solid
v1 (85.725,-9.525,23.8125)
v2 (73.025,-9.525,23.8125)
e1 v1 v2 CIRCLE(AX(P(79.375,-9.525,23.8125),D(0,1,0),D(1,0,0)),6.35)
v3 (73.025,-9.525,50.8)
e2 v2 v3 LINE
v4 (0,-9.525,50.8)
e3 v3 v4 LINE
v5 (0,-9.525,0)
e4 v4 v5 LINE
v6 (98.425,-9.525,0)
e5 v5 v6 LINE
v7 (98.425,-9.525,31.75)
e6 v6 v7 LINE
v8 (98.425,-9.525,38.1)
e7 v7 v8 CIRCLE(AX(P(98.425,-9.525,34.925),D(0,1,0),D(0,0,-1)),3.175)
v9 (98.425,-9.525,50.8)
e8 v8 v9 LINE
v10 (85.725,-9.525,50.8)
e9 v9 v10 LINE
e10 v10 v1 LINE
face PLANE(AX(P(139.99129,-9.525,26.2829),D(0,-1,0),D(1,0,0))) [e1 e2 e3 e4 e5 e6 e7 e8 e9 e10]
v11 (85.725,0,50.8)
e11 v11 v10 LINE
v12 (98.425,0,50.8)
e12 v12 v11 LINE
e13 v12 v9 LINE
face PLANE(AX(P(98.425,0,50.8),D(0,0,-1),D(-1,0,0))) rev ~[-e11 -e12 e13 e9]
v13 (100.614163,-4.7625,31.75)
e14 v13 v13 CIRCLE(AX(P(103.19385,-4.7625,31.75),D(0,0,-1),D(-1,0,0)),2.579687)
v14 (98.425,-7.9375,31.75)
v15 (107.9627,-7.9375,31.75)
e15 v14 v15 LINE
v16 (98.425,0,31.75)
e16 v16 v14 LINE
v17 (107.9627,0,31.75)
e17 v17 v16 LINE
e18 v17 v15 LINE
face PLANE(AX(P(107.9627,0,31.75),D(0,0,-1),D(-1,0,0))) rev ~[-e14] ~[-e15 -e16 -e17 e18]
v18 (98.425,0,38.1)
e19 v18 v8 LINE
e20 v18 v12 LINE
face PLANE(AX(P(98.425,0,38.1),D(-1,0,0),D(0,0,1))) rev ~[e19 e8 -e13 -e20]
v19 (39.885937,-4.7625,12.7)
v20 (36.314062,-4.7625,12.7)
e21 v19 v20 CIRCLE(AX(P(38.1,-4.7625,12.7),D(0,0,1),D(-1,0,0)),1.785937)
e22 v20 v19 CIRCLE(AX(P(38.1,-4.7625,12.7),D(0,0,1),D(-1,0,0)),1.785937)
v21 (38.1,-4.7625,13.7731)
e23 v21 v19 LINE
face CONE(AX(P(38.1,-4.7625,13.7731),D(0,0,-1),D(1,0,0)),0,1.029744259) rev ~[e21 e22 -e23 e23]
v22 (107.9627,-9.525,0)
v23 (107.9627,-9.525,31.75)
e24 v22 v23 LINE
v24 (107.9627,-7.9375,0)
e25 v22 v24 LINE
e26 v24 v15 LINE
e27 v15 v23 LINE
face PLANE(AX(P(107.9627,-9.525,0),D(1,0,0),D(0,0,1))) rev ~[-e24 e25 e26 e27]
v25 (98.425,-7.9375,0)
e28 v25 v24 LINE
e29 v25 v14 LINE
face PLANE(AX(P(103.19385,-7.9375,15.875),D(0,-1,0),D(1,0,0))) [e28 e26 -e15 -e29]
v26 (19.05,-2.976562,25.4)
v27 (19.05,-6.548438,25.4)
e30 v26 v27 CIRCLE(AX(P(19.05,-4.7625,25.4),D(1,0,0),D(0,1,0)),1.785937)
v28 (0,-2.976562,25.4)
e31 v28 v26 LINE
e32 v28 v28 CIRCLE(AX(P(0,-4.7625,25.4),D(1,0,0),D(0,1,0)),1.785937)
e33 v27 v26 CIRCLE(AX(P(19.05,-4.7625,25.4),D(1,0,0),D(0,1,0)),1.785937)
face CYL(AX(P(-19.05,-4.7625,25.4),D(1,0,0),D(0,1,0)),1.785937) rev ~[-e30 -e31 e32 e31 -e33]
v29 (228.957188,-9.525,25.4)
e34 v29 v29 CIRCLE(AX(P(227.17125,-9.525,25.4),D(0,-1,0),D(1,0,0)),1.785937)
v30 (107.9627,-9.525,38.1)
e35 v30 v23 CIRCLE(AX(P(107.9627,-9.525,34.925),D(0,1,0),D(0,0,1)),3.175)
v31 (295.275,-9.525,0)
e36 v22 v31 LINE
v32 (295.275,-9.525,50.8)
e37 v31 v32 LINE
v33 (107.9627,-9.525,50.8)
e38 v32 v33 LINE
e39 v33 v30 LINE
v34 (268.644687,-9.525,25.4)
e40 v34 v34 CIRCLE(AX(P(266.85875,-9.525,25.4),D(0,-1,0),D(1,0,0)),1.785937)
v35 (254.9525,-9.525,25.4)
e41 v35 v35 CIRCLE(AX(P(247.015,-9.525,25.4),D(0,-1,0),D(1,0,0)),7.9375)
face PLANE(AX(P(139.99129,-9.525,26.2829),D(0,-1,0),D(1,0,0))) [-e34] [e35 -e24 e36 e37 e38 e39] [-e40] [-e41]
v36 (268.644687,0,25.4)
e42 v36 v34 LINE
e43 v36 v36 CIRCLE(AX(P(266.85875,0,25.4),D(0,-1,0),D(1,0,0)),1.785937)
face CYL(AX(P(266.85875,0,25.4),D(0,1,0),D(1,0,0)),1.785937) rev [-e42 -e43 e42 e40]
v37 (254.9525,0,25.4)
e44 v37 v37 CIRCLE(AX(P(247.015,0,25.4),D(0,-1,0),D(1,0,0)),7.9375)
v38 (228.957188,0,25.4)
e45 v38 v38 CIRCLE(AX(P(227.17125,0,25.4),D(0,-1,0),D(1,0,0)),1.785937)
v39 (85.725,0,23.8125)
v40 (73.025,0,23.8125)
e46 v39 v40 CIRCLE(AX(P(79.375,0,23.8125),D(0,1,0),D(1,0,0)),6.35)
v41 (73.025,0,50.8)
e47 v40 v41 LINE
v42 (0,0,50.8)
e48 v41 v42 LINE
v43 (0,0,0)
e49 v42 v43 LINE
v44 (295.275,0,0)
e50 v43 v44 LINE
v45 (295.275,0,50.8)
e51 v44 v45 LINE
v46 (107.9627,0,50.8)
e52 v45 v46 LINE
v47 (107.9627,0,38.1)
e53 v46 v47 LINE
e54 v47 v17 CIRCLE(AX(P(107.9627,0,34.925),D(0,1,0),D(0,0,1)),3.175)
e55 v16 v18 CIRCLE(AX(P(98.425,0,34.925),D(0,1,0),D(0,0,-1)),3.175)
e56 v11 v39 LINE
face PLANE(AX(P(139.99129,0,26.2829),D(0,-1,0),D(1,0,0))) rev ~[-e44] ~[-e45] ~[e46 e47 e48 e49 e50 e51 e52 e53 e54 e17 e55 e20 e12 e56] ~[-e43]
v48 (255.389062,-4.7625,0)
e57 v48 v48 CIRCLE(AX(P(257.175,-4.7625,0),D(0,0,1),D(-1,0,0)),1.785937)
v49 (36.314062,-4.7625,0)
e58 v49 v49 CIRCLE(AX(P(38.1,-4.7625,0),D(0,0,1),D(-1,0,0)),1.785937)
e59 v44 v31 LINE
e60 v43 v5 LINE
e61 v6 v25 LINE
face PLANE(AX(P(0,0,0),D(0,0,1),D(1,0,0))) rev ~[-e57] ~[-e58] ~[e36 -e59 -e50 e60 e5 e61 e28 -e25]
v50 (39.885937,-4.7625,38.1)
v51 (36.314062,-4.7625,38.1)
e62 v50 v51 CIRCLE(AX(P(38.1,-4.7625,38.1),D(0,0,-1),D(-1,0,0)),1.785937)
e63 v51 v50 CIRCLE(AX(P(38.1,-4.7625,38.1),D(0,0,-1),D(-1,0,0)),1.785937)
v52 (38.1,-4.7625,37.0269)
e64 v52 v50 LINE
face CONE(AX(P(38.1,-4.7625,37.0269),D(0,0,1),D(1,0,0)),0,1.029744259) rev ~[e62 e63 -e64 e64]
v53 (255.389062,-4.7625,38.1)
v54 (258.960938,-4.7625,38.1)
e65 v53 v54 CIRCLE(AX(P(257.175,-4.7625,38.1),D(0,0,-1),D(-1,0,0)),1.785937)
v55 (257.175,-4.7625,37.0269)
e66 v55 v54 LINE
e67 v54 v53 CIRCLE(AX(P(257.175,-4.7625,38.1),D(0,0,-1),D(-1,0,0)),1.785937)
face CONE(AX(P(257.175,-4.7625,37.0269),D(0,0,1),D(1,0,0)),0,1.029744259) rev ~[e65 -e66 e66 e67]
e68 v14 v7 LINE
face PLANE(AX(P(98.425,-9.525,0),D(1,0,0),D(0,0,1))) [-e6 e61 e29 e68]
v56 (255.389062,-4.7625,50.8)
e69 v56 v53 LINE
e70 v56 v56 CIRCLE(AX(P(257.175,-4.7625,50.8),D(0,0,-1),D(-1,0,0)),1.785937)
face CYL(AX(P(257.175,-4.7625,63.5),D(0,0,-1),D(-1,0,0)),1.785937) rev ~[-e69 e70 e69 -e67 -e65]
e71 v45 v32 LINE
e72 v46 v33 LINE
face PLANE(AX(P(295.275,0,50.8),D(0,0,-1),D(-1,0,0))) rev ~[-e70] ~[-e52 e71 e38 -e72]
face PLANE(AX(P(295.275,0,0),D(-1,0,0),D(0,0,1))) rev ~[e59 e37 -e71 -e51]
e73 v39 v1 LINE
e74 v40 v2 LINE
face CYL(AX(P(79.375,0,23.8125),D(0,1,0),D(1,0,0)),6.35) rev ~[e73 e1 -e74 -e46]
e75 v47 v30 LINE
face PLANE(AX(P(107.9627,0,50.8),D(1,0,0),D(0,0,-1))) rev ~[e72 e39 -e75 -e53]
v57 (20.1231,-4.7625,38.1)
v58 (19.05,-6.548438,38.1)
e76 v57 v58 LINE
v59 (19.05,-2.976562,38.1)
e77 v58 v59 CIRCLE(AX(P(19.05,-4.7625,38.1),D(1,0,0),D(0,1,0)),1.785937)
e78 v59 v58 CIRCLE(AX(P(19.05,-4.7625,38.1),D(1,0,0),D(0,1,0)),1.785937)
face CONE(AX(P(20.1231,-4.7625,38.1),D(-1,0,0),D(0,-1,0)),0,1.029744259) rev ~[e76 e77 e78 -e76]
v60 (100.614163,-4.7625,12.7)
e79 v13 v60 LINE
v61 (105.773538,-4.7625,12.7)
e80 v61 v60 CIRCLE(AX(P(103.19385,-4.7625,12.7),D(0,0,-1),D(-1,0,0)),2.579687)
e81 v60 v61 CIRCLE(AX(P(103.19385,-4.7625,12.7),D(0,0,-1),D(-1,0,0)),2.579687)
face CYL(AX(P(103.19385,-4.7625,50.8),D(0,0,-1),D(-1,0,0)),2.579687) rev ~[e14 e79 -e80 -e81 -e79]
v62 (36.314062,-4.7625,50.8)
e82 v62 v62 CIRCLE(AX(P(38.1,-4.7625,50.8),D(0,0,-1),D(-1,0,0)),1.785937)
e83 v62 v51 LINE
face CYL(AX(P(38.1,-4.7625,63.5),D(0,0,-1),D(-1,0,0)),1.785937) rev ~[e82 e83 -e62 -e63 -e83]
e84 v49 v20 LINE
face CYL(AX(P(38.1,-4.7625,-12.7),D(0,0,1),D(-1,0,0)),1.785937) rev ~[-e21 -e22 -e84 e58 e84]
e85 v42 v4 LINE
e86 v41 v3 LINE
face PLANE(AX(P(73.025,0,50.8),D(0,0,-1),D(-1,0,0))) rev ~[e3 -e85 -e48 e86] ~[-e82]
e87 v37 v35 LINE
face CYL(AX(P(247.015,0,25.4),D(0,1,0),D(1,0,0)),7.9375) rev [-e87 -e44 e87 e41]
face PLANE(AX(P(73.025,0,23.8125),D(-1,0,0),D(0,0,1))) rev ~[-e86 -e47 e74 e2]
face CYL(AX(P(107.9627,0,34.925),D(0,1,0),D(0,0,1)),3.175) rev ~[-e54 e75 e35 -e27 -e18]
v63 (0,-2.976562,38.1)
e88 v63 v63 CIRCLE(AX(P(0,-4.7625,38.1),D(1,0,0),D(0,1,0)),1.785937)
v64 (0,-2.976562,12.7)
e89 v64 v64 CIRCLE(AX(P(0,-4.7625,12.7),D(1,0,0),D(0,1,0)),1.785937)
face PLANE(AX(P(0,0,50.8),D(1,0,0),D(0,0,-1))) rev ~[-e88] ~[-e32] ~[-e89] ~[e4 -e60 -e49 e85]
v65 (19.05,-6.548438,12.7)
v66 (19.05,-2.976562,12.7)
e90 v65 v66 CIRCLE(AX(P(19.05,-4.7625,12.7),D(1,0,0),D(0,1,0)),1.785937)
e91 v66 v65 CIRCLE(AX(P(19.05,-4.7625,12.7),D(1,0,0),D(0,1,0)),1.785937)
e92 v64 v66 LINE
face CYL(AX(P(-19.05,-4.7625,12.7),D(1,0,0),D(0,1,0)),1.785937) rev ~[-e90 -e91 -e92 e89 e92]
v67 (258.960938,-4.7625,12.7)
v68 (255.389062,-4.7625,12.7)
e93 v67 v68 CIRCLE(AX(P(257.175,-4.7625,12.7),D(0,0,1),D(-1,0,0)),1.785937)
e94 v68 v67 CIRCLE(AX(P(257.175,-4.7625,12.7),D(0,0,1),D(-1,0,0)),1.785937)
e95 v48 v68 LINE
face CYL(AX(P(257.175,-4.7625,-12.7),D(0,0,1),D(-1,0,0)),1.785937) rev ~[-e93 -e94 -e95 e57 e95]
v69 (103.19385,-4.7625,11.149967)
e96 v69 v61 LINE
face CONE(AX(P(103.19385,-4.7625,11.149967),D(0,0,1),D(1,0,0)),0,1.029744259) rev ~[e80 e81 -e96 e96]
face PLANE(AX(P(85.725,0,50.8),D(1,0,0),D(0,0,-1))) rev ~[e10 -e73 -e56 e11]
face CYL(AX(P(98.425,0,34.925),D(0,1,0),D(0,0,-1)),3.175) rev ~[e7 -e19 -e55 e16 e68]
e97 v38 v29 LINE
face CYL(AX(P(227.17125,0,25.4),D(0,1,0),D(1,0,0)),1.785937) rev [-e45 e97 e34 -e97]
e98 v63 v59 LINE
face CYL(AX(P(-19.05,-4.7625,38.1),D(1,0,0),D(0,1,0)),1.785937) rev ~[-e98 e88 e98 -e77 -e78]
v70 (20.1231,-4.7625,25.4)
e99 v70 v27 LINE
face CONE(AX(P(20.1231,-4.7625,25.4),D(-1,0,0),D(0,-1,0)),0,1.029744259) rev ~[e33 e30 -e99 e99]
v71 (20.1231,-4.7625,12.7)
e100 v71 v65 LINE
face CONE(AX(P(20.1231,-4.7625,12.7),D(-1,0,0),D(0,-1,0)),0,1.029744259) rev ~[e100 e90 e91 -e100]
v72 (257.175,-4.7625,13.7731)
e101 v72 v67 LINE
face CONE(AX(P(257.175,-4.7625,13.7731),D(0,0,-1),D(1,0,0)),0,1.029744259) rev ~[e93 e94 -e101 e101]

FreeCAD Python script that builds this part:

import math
import FreeCAD as App
import Part
import Sketcher

V = App.Vector
Q = App.Units.Quantity

doc = App.newDocument("Part")
body = doc.addObject("PartDesign::Body", "Body")

sketch1 = body.newObject("Sketcher::SketchObject", "Sketch")
sketch1.AttachmentSupport = (doc.getObject("XZ_Plane"), [""])
sketch1.MapMode = "FlatFace"
sketch1.addGeometry(Part.LineSegment(V(0, 50.8, 0), V(0, 0, 0)), False)
sketch1.addGeometry(Part.LineSegment(V(0, 0, 0), V(295.3, 0, 0)), False)
sketch1.addGeometry(Part.LineSegment(V(295.3, 0, 0), V(295.3, 50.8, 0)), False)
sketch1.addGeometry(Part.LineSegment(V(295.3, 50.8, 0), V(108, 50.8, 0)), False)
sketch1.addGeometry(Part.LineSegment(V(108, 50.8, 0), V(108, 38.1, 0)), False)
sketch1.addGeometry(Part.ArcOfCircle(Part.Circle(V(108, 34.9, 0), V(0, 0, 1), 3.2), math.radians(-90), math.radians(90)), False)
sketch1.addGeometry(Part.LineSegment(V(108, 31.8, 0), V(98.4, 31.8, 0)), False)
sketch1.addGeometry(Part.ArcOfCircle(Part.Circle(V(98.4, 34.9, 0), V(0, 0, 1), 3.2), math.radians(90), math.radians(270)), False)
sketch1.addGeometry(Part.LineSegment(V(98.4, 38.1, 0), V(98.4, 50.8, 0)), False)
sketch1.addGeometry(Part.LineSegment(V(98.4, 50.8, 0), V(85.7, 50.8, 0)), False)
sketch1.addGeometry(Part.LineSegment(V(85.7, 50.8, 0), V(85.7, 23.8, 0)), False)
sketch1.addGeometry(Part.ArcOfCircle(Part.Circle(V(79.4, 23.8, 0), V(0, 0, 1), 6.3), math.radians(180), math.radians(360)), False)
sketch1.addGeometry(Part.LineSegment(V(73, 23.8, 0), V(73, 50.8, 0)), False)
sketch1.addGeometry(Part.LineSegment(V(73, 50.8, 0), V(0, 50.8, 0)), False)
sketch1.addGeometry(Part.Circle(V(227.2, 25.4, 0), V(0, 0, 1), 1.8), False)
sketch1.addGeometry(Part.Circle(V(247, 25.4, 0), V(0, 0, 1), 7.9), False)
sketch1.addGeometry(Part.Circle(V(266.9, 25.4, 0), V(0, 0, 1), 1.8), False)
sketch1.addConstraint(Sketcher.Constraint("Coincident", 0, 2, 1, 1))
sketch1.addConstraint(Sketcher.Constraint("Coincident", 1, 2, 2, 1))
sketch1.addConstraint(Sketcher.Constraint("Coincident", 2, 2, 3, 1))
sketch1.addConstraint(Sketcher.Constraint("Coincident", 3, 2, 4, 1))
sketch1.addConstraint(Sketcher.Constraint("Coincident", 4, 2, 5, 2))
sketch1.addConstraint(Sketcher.Constraint("Tangent", 5, 1, 6, 1))
sketch1.addConstraint(Sketcher.Constraint("Tangent", 6, 2, 7, 2))
sketch1.addConstraint(Sketcher.Constraint("Coincident", 7, 1, 8, 1))
sketch1.addConstraint(Sketcher.Constraint("Coincident", 8, 2, 9, 1))
sketch1.addConstraint(Sketcher.Constraint("Coincident", 9, 2, 10, 1))
sketch1.addConstraint(Sketcher.Constraint("Tangent", 10, 2, 11, 2))
sketch1.addConstraint(Sketcher.Constraint("Tangent", 11, 1, 12, 1))
sketch1.addConstraint(Sketcher.Constraint("Coincident", 12, 2, 13, 1))
sketch1.addConstraint(Sketcher.Constraint("Coincident", 13, 2, 0, 1))
sketch1.addConstraint(Sketcher.Constraint("Vertical", 0))
sketch1.addConstraint(Sketcher.Constraint("Horizontal", 1))
sketch1.addConstraint(Sketcher.Constraint("Vertical", 2))
sketch1.addConstraint(Sketcher.Constraint("Horizontal", 3))
sketch1.addConstraint(Sketcher.Constraint("Vertical", 4))
sketch1.addConstraint(Sketcher.Constraint("Horizontal", 6))
sketch1.addConstraint(Sketcher.Constraint("Vertical", 8))
sketch1.addConstraint(Sketcher.Constraint("Horizontal", 9))
sketch1.addConstraint(Sketcher.Constraint("Vertical", 10))
sketch1.addConstraint(Sketcher.Constraint("Vertical", 12))
sketch1.addConstraint(Sketcher.Constraint("Horizontal", 13))
sketch1.addConstraint(Sketcher.Constraint("Coincident", 0, 2, -1, 1))
sketch1.addConstraint(Sketcher.Constraint("Equal", 5, 7))
sketch1.addConstraint(Sketcher.Constraint("Equal", 14, 16))
sketch1.addConstraint(Sketcher.Constraint("Horizontal", 14, 3, 15, 3))
sketch1.addConstraint(Sketcher.Constraint("Horizontal", 15, 3, 16, 3))
sketch1.addConstraint(Sketcher.Constraint("Horizontal", 3, 2, 8, 2))
sketch1.addConstraint(Sketcher.Constraint("Horizontal", 9, 2, 12, 2))
sketch1.addConstraint(Sketcher.Constraint("Vertical", 5, 3, 3, 2))
sketch1.addConstraint(Sketcher.Constraint("Vertical", 6, 2, 7, 1))
sketch1.addConstraint(Sketcher.Constraint("Equal", 9, 4))
sketch1.addConstraint(Sketcher.Constraint("DistanceY", 0, 2, 0, 1, Q("2 in")))
sketch1.addConstraint(Sketcher.Constraint("Radius", 11, Q("0.25 in")))
sketch1.addConstraint(Sketcher.Constraint("Diameter", 14, Q("0.140625 in")))
sketch1.addConstraint(Sketcher.Constraint("Diameter", 15, Q("0.625 in")))
sketch1.addConstraint(Sketcher.Constraint("DistanceX", 9, 2, 9, 1, Q("0.5 in")))
sketch1.addConstraint(Sketcher.Constraint("DistanceY", -1, 1, 14, 3, Q("1 in")))
sketch1.addConstraint(Sketcher.Constraint("Radius", 5, Q("0.125 in")))
sketch1.addConstraint(Sketcher.Constraint("DistanceX", 11, 3, 15, 3, Q("6.6 in")))
sketch1.addConstraint(Sketcher.Constraint("DistanceX", 15, 3, 1, 2, Q("1.9 in")))
sketch1.addConstraint(Sketcher.Constraint("DistanceX", 1, 1, 1, 2, Q("11.625 in")))
sketch1.addConstraint(Sketcher.Constraint("DistanceY", 10, 2, 10, 1, Q("1.0625 in")))
sketch1.addConstraint(Sketcher.Constraint("DistanceX", 3, 2, 3, 1, Q("7.3745 in")))
sketch1.addConstraint(Sketcher.Constraint("DistanceX", 14, 3, 15, 3, Q("0.78125 in")))
sketch1.addConstraint(Sketcher.Constraint("DistanceX", 15, 3, 16, 3, Q("0.78125 in")))
pad1 = body.newObject("PartDesign::Pad", "Pad")
pad1.Profile = sketch1
pad1.Length = Q("0.375 in")

sketch2 = body.newObject("Sketcher::SketchObject", "Sketch001")
sketch2.AttachmentSupport = (doc.getObject("XZ_Plane"), [""])
sketch2.MapMode = "FlatFace"
sketch2.AttachmentOffset = App.Placement(V(0, 0, 0.375 * 25.4), App.Rotation())
sketch2.addGeometry(Part.LineSegment(V(98, 32, 0), V(98, 0, 0)), False)
sketch2.addGeometry(Part.LineSegment(V(98, 0, 0), V(108, 0, 0)), False)
sketch2.addGeometry(Part.LineSegment(V(108, 0, 0), V(108, 32, 0)), False)
sketch2.addGeometry(Part.LineSegment(V(108, 32, 0), V(98, 32, 0)), False)
sketch2.addConstraint(Sketcher.Constraint("Coincident", 0, 2, 1, 1))
sketch2.addConstraint(Sketcher.Constraint("Coincident", 1, 2, 2, 1))
sketch2.addConstraint(Sketcher.Constraint("Coincident", 2, 2, 3, 1))
sketch2.addConstraint(Sketcher.Constraint("Coincident", 3, 2, 0, 1))
sketch2.addConstraint(Sketcher.Constraint("Vertical", 0))
sketch2.addConstraint(Sketcher.Constraint("Horizontal", 1))
sketch2.addConstraint(Sketcher.Constraint("Vertical", 2))
sketch2.addConstraint(Sketcher.Constraint("Horizontal", 3))
sketch2.addConstraint(Sketcher.Constraint("PointOnObject", 0, 2, -1))
sketch2.addConstraint(Sketcher.Constraint("DistanceY", 0, 2, 0, 1, Q("1.25 in")))
sketch2.addConstraint(Sketcher.Constraint("DistanceX", 1, 1, 1, 2, Q("0.3755 in")))
sketch2.addConstraint(Sketcher.Constraint("DistanceX", -1, 1, 0, 2, Q("3.875 in")))
pocket1 = body.newObject("PartDesign::Pocket", "Pocket")
pocket1.Profile = sketch2
pocket1.Length = Q("0.0625 in")

sketch3 = body.newObject("Sketcher::SketchObject", "Sketch002")
sketch3.AttachmentSupport = (doc.getObject("YZ_Plane"), [""])
sketch3.MapMode = "FlatFace"
sketch3.addGeometry(Part.Circle(V(-4.8, 38.1, 0), V(0, 0, 1), 1.8), False)
sketch3.addGeometry(Part.Circle(V(-4.8, 25.4, 0), V(0, 0, 1), 1.8), False)
sketch3.addGeometry(Part.Circle(V(-4.8, 12.7, 0), V(0, 0, 1), 1.8), False)
sketch3.addConstraint(Sketcher.Constraint("Equal", 0, 1))
sketch3.addConstraint(Sketcher.Constraint("Equal", 1, 2))
sketch3.addConstraint(Sketcher.Constraint("Vertical", 0, 3, 1, 3))
sketch3.addConstraint(Sketcher.Constraint("Vertical", 1, 3, 2, 3))
sketch3.addConstraint(Sketcher.Constraint("Diameter", 0, Q("0.140625 in")))
sketch3.addConstraint(Sketcher.Constraint("DistanceY", -1, 1, 1, 3, Q("1 in")))
sketch3.addConstraint(Sketcher.Constraint("DistanceY", 2, 3, 0, 3, Q("1 in")))
sketch3.addConstraint(Sketcher.Constraint("DistanceY", -1, 1, 0, 3, Q("1.5 in")))
sketch3.addConstraint(Sketcher.Constraint("DistanceX", 0, 3, -1, 1, Q("0.1875 in")))
doc.recompute()
hole = body.newObject("PartDesign::Hole", "Hole")
hole.Profile = sketch3
hole.ThreadType = "None"
hole.Diameter = Q("0.140625 in")
hole.DepthType = "Dimension"
hole.Depth = Q("0.75 in")
hole.DrillPoint = "Angled"
hole.DrillPointAngle = 118
hole.Reversed = True

sketch4 = body.newObject("Sketcher::SketchObject", "Sketch003")
sketch4.AttachmentSupport = (doc.getObject("XY_Plane"), [""])
sketch4.MapMode = "FlatFace"
sketch4.AttachmentOffset = App.Placement(V(0, 0, 1.25 * 25.4), App.Rotation())
sketch4.addGeometry(Part.Circle(V(103.2, -4.8, 0), V(0, 0, 1), 2.6), False)
sketch4.addConstraint(Sketcher.Constraint("Diameter", 0, Q("0.203125 in")))
sketch4.addConstraint(Sketcher.Constraint("DistanceY", 0, 3, -1, 1, Q("0.1875 in")))
sketch4.addConstraint(Sketcher.Constraint("DistanceX", -1, 1, 0, 3, 103.19385))
doc.recompute()
hole2 = body.newObject("PartDesign::Hole", "Hole001")
hole2.Profile = sketch4
hole2.ThreadType = "None"
hole2.Diameter = Q("0.203125 in")
hole2.DepthType = "Dimension"
hole2.Depth = Q("0.75 in")
hole2.DrillPoint = "Angled"
hole2.DrillPointAngle = 118

sketch5 = body.newObject("Sketcher::SketchObject", "Sketch004")
sketch5.AttachmentSupport = (doc.getObject("XY_Plane"), [""])
sketch5.MapMode = "FlatFace"
sketch5.addGeometry(Part.Circle(V(38.1, -4.8, 0), V(0, 0, 1), 1.8), False)
sketch5.addGeometry(Part.Circle(V(257.2, -4.8, 0), V(0, 0, 1), 1.8), False)
sketch5.addConstraint(Sketcher.Constraint("Equal", 0, 1))
sketch5.addConstraint(Sketcher.Constraint("Horizontal", 0, 3, 1, 3))
sketch5.addConstraint(Sketcher.Constraint("Diameter", 0, Q("0.140625 in")))
sketch5.addConstraint(Sketcher.Constraint("DistanceX", -1, 1, 0, 3, Q("1.5 in")))
sketch5.addConstraint(Sketcher.Constraint("DistanceY", 0, 3, -1, 1, Q("0.1875 in")))
sketch5.addConstraint(Sketcher.Constraint("DistanceX", -1, 1, 1, 3, Q("10.125 in")))
doc.recompute()
hole3 = body.newObject("PartDesign::Hole", "Hole002")
hole3.Profile = sketch5
hole3.ThreadType = "None"
hole3.Diameter = Q("0.140625 in")
hole3.DepthType = "Dimension"
hole3.Depth = Q("0.5 in")
hole3.DrillPoint = "Angled"
hole3.DrillPointAngle = 118
hole3.Reversed = True

sketch6 = body.newObject("Sketcher::SketchObject", "Sketch005")
sketch6.AttachmentSupport = (doc.getObject("XY_Plane"), [""])
sketch6.MapMode = "FlatFace"
sketch6.AttachmentOffset = App.Placement(V(0, 0, 2 * 25.4), App.Rotation())
sketch6.addGeometry(Part.Circle(V(38.1, -4.8, 0), V(0, 0, 1), 1.8), False)
sketch6.addConstraint(Sketcher.Constraint("Diameter", 0, Q("0.140625 in")))
sketch6.addConstraint(Sketcher.Constraint("DistanceX", -1, 1, 0, 3, Q("1.5 in")))
sketch6.addConstraint(Sketcher.Constraint("DistanceY", 0, 3, -1, 1, Q("0.1875 in")))
doc.recompute()
hole4 = body.newObject("PartDesign::Hole", "Hole003")
hole4.Profile = sketch6
hole4.ThreadType = "None"
hole4.Diameter = Q("0.140625 in")
hole4.DepthType = "Dimension"
hole4.Depth = Q("0.5 in")
hole4.DrillPoint = "Angled"
hole4.DrillPointAngle = 118

sketch7 = body.newObject("Sketcher::SketchObject", "Sketch006")
sketch7.AttachmentSupport = (doc.getObject("XY_Plane"), [""])
sketch7.MapMode = "FlatFace"
sketch7.AttachmentOffset = App.Placement(V(0, 0, 2 * 25.4), App.Rotation())
sketch7.addGeometry(Part.Circle(V(257.2, -4.8, 0), V(0, 0, 1), 1.8), False)
sketch7.addConstraint(Sketcher.Constraint("Diameter", 0, Q("0.140625 in")))
sketch7.addConstraint(Sketcher.Constraint("DistanceX", -1, 1, 0, 3, Q("10.125 in")))
sketch7.addConstraint(Sketcher.Constraint("DistanceY", 0, 3, -1, 1, Q("0.1875 in")))
doc.recompute()
hole5 = body.newObject("PartDesign::Hole", "Hole004")
hole5.Profile = sketch7
hole5.ThreadType = "None"
hole5.Diameter = Q("0.140625 in")
hole5.DepthType = "Dimension"
hole5.Depth = Q("0.5 in")
hole5.DrillPoint = "Angled"
hole5.DrillPointAngle = 118

doc.recompute()
